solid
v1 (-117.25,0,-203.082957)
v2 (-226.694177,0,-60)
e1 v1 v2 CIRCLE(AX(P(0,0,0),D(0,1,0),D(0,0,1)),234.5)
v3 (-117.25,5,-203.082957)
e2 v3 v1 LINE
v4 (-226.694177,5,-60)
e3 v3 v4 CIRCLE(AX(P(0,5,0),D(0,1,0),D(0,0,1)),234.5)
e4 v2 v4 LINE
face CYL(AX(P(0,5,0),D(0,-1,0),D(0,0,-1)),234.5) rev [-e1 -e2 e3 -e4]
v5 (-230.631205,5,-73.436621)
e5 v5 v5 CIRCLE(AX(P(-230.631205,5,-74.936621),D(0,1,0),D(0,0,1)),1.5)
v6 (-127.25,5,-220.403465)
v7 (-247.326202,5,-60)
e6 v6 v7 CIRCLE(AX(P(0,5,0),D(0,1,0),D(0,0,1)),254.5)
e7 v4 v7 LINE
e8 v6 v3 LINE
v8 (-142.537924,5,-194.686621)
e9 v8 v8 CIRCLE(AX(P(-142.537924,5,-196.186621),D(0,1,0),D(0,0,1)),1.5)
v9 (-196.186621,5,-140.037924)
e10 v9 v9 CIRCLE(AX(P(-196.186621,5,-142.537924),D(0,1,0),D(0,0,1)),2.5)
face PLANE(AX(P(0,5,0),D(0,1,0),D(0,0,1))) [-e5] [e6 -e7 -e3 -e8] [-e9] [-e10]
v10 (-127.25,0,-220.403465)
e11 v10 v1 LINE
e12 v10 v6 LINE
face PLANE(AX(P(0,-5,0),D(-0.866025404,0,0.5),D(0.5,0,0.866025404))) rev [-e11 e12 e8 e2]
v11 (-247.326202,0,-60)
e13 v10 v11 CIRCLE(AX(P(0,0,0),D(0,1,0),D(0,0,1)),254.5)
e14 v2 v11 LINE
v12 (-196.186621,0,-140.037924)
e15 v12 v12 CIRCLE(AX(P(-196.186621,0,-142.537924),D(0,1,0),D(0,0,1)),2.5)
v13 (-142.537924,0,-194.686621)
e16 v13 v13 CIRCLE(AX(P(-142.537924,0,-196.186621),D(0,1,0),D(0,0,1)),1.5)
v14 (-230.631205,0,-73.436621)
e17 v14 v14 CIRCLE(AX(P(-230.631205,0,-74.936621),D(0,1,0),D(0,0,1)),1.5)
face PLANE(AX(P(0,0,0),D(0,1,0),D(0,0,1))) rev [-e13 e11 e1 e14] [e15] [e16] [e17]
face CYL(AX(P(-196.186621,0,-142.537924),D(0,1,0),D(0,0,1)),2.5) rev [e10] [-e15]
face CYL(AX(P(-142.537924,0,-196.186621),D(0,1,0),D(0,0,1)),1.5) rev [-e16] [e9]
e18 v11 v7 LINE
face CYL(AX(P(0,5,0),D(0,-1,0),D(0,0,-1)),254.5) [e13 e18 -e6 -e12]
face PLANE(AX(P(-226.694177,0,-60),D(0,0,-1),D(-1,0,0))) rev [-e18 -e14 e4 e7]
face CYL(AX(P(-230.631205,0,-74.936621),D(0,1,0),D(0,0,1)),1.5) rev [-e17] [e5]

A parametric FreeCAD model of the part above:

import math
import FreeCAD as App
import Part
import Sketcher
from FreeCAD import Vector
Q = App.Units.Quantity


def add_polygon(sketch, points):
    """Adds a closed chain of lines whose ends are joined by coincident constraints."""
    first, n = sketch.GeometryCount, len(points)
    for a, b in zip(points, points[1:] + points[:1]):
        sketch.addGeometry(Part.LineSegment(App.Vector(*a, 0), App.Vector(*b, 0)), False)
    for i in range(n):
        sketch.addConstraint(Sketcher.Constraint("Coincident", first + i, 2, first + (i + 1) % n, 1))

doc = App.newDocument("Part")
body = doc.addObject("PartDesign::Body", "Body")

# Sketch on XZ plane
sketch1 = body.newObject("Sketcher::SketchObject", "Sketch")
sketch1.AttachmentSupport = (doc.getObject("XZ_Plane"), [""])
sketch1.MapMode = "FlatFace"
sketch1.addGeometry(Part.Circle(Vector(0, 0, 0), Vector(0, 0, 1), 254), False)
sketch1.addGeometry(Part.Circle(Vector(0, 0, 0), Vector(0, 0, 1), 234), False)
sketch1.addConstraint(Sketcher.Constraint("Coincident", 0, 3, -1, 1))
sketch1.addConstraint(Sketcher.Constraint("Coincident", 1, 3, -1, 1))
sketch1.addConstraint(Sketcher.Constraint("Diameter", 0, Q("509 mm")))
sketch1.addConstraint(Sketcher.Constraint("Diameter", 1, Q("469 mm")))
pad1 = body.newObject("PartDesign::Pad", "Pad")
pad1.Profile = sketch1
pad1.Length = 5
pad1.Reversed = True

# Sketch on XZ plane
sketch2 = body.newObject("Sketcher::SketchObject", "Sketch001")
sketch2.AttachmentSupport = (doc.getObject("XZ_Plane"), [""])
sketch2.MapMode = "FlatFace"
sketch2.AttachmentOffset = App.Placement(Vector(0, 0, -5), App.Rotation())
add_polygon(sketch2, [(-254, -60), (-254, 0), (-227, 0), (-227, -60)])  # lines 0-3
sketch2.addConstraint(Sketcher.Constraint("Vertical", 0))
sketch2.addConstraint(Sketcher.Constraint("Horizontal", 1))
sketch2.addConstraint(Sketcher.Constraint("Vertical", 2))
sketch2.addConstraint(Sketcher.Constraint("Horizontal", 3))
sketch2.addConstraint(Sketcher.Constraint("PointOnObject", 0, 2, -1))
sketch2.addConstraint(Sketcher.Constraint("DistanceY", 0, 1, 0, 2, Q("60 mm")))
sketch2.addConstraint(Sketcher.Constraint("DistanceX", 0, 2, -1, 1, Q("254.5 mm")))
sketch2.addConstraint(Sketcher.Constraint("DistanceX", 1, 1, 1, 2, Q("27.805823 mm")))
pocket1 = body.newObject("PartDesign::Pocket", "Pocket")
pocket1.Profile = sketch2
pocket1.Length = 5
pocket1.Reversed = True
doc.recompute()

mirrored = body.newObject("PartDesign::Mirrored", "Mirrored")
mirrored.Originals = [pocket1]
mirrored.MirrorPlane = (doc.getObject("XY_Plane"), [""])
body.Tip = mirrored

# Sketch on XZ plane
sketch3 = body.newObject("Sketcher::SketchObject", "Sketch002")
sketch3.AttachmentSupport = (doc.getObject("XZ_Plane"), [""])
sketch3.MapMode = "FlatFace"
sketch3.AttachmentOffset = App.Placement(Vector(0, 0, -5), App.Rotation())
sketch3.addGeometry(Part.Circle(Vector(242.5, 0, 0), Vector(0, 0, 1), 2.5), False)
sketch3.addGeometry(Part.Circle(Vector(196.2, 142.5, 0), Vector(0, 0, 1), 2.5), False)
sketch3.addGeometry(Part.Circle(Vector(74.9, 230.6, 0), Vector(0, 0, 1), 2.5), False)
sketch3.addGeometry(Part.Circle(Vector(-74.9, 230.6, 0), Vector(0, 0, 1), 2.5), False)
sketch3.addGeometry(Part.Circle(Vector(-196.2, 142.5, 0), Vector(0, 0, 1), 2.5), False)
sketch3.addGeometry(Part.Circle(Vector(-242.5, 0, 0), Vector(0, 0, 1), 2.5), False)
sketch3.addGeometry(Part.Circle(Vector(-196.2, -142.5, 0), Vector(0, 0, 1), 2.5), False)
sketch3.addGeometry(Part.Circle(Vector(-74.9, -230.6, 0), Vector(0, 0, 1), 2.5), False)
sketch3.addGeometry(Part.Circle(Vector(74.9, -230.6, 0), Vector(0, 0, 1), 2.5), False)
sketch3.addGeometry(Part.Circle(Vector(196.2, -142.5, 0), Vector(0, 0, 1), 2.5), False)
sketch3.addConstraint(Sketcher.Constraint("Equal", 0, 1))
sketch3.addConstraint(Sketcher.Constraint("Equal", 1, 2))
sketch3.addConstraint(Sketcher.Constraint("Equal", 2, 3))
sketch3.addConstraint(Sketcher.Constraint("Equal", 3, 4))
sketch3.addConstraint(Sketcher.Constraint("Equal", 4, 5))
sketch3.addConstraint(Sketcher.Constraint("Equal", 5, 6))
sketch3.addConstraint(Sketcher.Constraint("Equal", 6, 7))
sketch3.addConstraint(Sketcher.Constraint("Equal", 7, 8))
sketch3.addConstraint(Sketcher.Constraint("Equal", 8, 9))
sketch3.addConstraint(Sketcher.Constraint("Symmetric", 0, 3, 5, 3, -1, 1))
sketch3.addConstraint(Sketcher.Constraint("Symmetric", 1, 3, 6, 3, -1, 1))
sketch3.addConstraint(Sketcher.Constraint("Symmetric", 2, 3, 7, 3, -1, 1))
sketch3.addConstraint(Sketcher.Constraint("Symmetric", 3, 3, 8, 3, -1, 1))
sketch3.addConstraint(Sketcher.Constraint("Symmetric", 4, 3, 9, 3, -1, 1))
sketch3.addConstraint(Sketcher.Constraint("Symmetric", 2, 3, 3, 3, -2))
sketch3.addConstraint(Sketcher.Constraint("Symmetric", 1, 3, 4, 3, -2))
sketch3.addConstraint(Sketcher.Constraint("PointOnObject", 0, 3, -1))
sketch3.addConstraint(Sketcher.Constraint("Diameter", 0, Q("5 mm")))
sketch3.addConstraint(Sketcher.Constraint("DistanceX", 5, 3, 0, 3, Q("485 mm")))
sketch3.addConstraint(Sketcher.Constraint("DistanceX", 2, 3, 1, 3, Q("121.25 mm")))
sketch3.addConstraint(Sketcher.Constraint("DistanceX", -1, 1, 1, 3, Q("196.186621 mm")))
sketch3.addConstraint(Sketcher.Constraint("DistanceY", 1, 3, 2, 3, Q("88.093282 mm")))
sketch3.addConstraint(Sketcher.Constraint("DistanceY", 6, 3, 3, 3, Q("373.169129 mm")))
pocket2 = body.newObject("PartDesign::Pocket", "Pocket001")
pocket2.Profile = sketch3
pocket2.Length = 5
pocket2.Reversed = True

# Sketch on XZ plane
sketch4 = body.newObject("Sketcher::SketchObject", "Sketch003")
sketch4.AttachmentSupport = (doc.getObject("XZ_Plane"), [""])
sketch4.MapMode = "FlatFace"
sketch4.AttachmentOffset = App.Placement(Vector(0, 0, -5), App.Rotation())
sketch4.addGeometry(Part.Circle(Vector(0, 242.5, 0), Vector(0, 0, 1), 1.5), False)
sketch4.addGeometry(Part.Circle(Vector(-142.5, 196.2, 0), Vector(0, 0, 1), 1.5), False)
sketch4.addGeometry(Part.Circle(Vector(-230.6, 74.9, 0), Vector(0, 0, 1), 1.5), False)
sketch4.addGeometry(Part.Circle(Vector(-230.6, -74.9, 0), Vector(0, 0, 1), 1.5), False)
sketch4.addGeometry(Part.Circle(Vector(-142.5, -196.2, 0), Vector(0, 0, 1), 1.5), False)
sketch4.addGeometry(Part.Circle(Vector(0, -242.5, 0), Vector(0, 0, 1), 1.5), False)
sketch4.addGeometry(Part.Circle(Vector(142.5, -196.2, 0), Vector(0, 0, 1), 1.5), False)
sketch4.addGeometry(Part.Circle(Vector(230.6, -74.9, 0), Vector(0, 0, 1), 1.5), False)
sketch4.addGeometry(Part.Circle(Vector(230.6, 74.9, 0), Vector(0, 0, 1), 1.5), False)
sketch4.addGeometry(Part.Circle(Vector(142.5, 196.2, 0), Vector(0, 0, 1), 1.5), False)
sketch4.addConstraint(Sketcher.Constraint("Equal", 0, 1))
sketch4.addConstraint(Sketcher.Constraint("Equal", 1, 2))
sketch4.addConstraint(Sketcher.Constraint("Equal", 2, 3))
sketch4.addConstraint(Sketcher.Constraint("Equal", 3, 4))
sketch4.addConstraint(Sketcher.Constraint("Equal", 4, 5))
sketch4.addConstraint(Sketcher.Constraint("Equal", 5, 6))
sketch4.addConstraint(Sketcher.Constraint("Equal", 6, 7))
sketch4.addConstraint(Sketcher.Constraint("Equal", 7, 8))
sketch4.addConstraint(Sketcher.Constraint("Equal", 8, 9))
sketch4.addConstraint(Sketcher.Constraint("Symmetric", 0, 3, 5, 3, -1, 1))
sketch4.addConstraint(Sketcher.Constraint("Symmetric", 1, 3, 6, 3, -1, 1))
sketch4.addConstraint(Sketcher.Constraint("Symmetric", 2, 3, 7, 3, -1, 1))
sketch4.addConstraint(Sketcher.Constraint("Symmetric", 3, 3, 8, 3, -1, 1))
sketch4.addConstraint(Sketcher.Constraint("Symmetric", 4, 3, 9, 3, -1, 1))
sketch4.addConstraint(Sketcher.Constraint("Symmetric", 4, 3, 6, 3, -2))
sketch4.addConstraint(Sketcher.Constraint("Symmetric", 3, 3, 7, 3, -2))
sketch4.addConstraint(Sketcher.Constraint("PointOnObject", 0, 3, -2))
sketch4.addConstraint(Sketcher.Constraint("Diameter", 0, Q("3 mm")))
sketch4.addConstraint(Sketcher.Constraint("DistanceY", 5, 3, 0, 3, Q("485 mm")))
sketch4.addConstraint(Sketcher.Constraint("DistanceY", 2, 3, 1, 3, Q("121.25 mm")))
sketch4.addConstraint(Sketcher.Constraint("DistanceY", -1, 1, 1, 3, Q("196.186621 mm")))
sketch4.addConstraint(Sketcher.Constraint("DistanceX", 2, 3, 1, 3, Q("88.093282 mm")))
sketch4.addConstraint(Sketcher.Constraint("DistanceX", 3, 3, 6, 3, Q("373.169129 mm")))
pocket3 = body.newObject("PartDesign::Pocket", "Pocket002")
pocket3.Profile = sketch4
pocket3.Length = 5
pocket3.Reversed = True

# Sketch on XZ plane
sketch5 = body.newObject("Sketcher::SketchObject", "Sketch004")
sketch5.AttachmentSupport = (doc.getObject("XZ_Plane"), [""])
sketch5.MapMode = "FlatFace"
sketch5.AttachmentOffset = App.Placement(Vector(0, 0, -5), App.Rotation())
add_polygon(sketch5, [(-397, 0), (-397, 357), (254, 357), (254, 0)])  # lines 0-3
sketch5.addConstraint(Sketcher.Constraint("Vertical", 0))
sketch5.addConstraint(Sketcher.Constraint("Horizontal", 1))
sketch5.addConstraint(Sketcher.Constraint("Vertical", 2))
sketch5.addConstraint(Sketcher.Constraint("Horizontal", 3))
sketch5.addConstraint(Sketcher.Constraint("PointOnObject", 2, 2, -1))
sketch5.addConstraint(Sketcher.Constraint("DistanceX", -1, 1, 1, 2, Q("254.5 mm")))
sketch5.addConstraint(Sketcher.Constraint("DistanceX", 1, 1, 1, 2, Q("651.21262 mm")))
sketch5.addConstraint(Sketcher.Constraint("DistanceY", 0, 1, 0, 2, Q("357.226439 mm")))
pocket4 = body.newObject("PartDesign::Pocket", "Pocket003")
pocket4.Profile = sketch5
pocket4.Length = 10
pocket4.Reversed = True

# Sketch on XZ plane
sketch6 = body.newObject("Sketcher::SketchObject", "Sketch005")
sketch6.AttachmentSupport = (doc.getObject("XZ_Plane"), [""])
sketch6.MapMode = "FlatFace"
sketch6.AttachmentOffset = App.Placement(Vector(0, 0, 5), App.Rotation())
sketch6.addGeometry(Part.LineSegment(Vector(0, 0, 0), Vector(254, 0, 0)), False)
sketch6.addGeometry(Part.ArcOfCircle(Part.Circle(Vector(0, 0, 0), Vector(0, 0, 1), 254), math.radians(-120), math.radians(0)), False)
sketch6.addGeometry(Part.LineSegment(Vector(-127, -220, 0), Vector(0, 0, 0)), False)
sketch6.addConstraint(Sketcher.Constraint("Coincident", 0, 2, 1, 2))
sketch6.addConstraint(Sketcher.Constraint("Coincident", 1, 1, 2, 1))
sketch6.addConstraint(Sketcher.Constraint("Coincident", 2, 2, 0, 1))
sketch6.addConstraint(Sketcher.Constraint("Horizontal", 0))
sketch6.addConstraint(Sketcher.Constraint("Coincident", 1, 3, -1, 1))
sketch6.addConstraint(Sketcher.Constraint("Coincident", 2, 2, -1, 1))
sketch6.addConstraint(Sketcher.Constraint("Radius", 1, Q("254.5 mm")))
sketch6.addConstraint(Sketcher.Constraint("Angle", 2, Q("60 deg")))
pocket5 = body.newObject("PartDesign::Pocket", "Pocket004")
pocket5.Profile = sketch6
pocket5.Length = 10

doc.recompute()
